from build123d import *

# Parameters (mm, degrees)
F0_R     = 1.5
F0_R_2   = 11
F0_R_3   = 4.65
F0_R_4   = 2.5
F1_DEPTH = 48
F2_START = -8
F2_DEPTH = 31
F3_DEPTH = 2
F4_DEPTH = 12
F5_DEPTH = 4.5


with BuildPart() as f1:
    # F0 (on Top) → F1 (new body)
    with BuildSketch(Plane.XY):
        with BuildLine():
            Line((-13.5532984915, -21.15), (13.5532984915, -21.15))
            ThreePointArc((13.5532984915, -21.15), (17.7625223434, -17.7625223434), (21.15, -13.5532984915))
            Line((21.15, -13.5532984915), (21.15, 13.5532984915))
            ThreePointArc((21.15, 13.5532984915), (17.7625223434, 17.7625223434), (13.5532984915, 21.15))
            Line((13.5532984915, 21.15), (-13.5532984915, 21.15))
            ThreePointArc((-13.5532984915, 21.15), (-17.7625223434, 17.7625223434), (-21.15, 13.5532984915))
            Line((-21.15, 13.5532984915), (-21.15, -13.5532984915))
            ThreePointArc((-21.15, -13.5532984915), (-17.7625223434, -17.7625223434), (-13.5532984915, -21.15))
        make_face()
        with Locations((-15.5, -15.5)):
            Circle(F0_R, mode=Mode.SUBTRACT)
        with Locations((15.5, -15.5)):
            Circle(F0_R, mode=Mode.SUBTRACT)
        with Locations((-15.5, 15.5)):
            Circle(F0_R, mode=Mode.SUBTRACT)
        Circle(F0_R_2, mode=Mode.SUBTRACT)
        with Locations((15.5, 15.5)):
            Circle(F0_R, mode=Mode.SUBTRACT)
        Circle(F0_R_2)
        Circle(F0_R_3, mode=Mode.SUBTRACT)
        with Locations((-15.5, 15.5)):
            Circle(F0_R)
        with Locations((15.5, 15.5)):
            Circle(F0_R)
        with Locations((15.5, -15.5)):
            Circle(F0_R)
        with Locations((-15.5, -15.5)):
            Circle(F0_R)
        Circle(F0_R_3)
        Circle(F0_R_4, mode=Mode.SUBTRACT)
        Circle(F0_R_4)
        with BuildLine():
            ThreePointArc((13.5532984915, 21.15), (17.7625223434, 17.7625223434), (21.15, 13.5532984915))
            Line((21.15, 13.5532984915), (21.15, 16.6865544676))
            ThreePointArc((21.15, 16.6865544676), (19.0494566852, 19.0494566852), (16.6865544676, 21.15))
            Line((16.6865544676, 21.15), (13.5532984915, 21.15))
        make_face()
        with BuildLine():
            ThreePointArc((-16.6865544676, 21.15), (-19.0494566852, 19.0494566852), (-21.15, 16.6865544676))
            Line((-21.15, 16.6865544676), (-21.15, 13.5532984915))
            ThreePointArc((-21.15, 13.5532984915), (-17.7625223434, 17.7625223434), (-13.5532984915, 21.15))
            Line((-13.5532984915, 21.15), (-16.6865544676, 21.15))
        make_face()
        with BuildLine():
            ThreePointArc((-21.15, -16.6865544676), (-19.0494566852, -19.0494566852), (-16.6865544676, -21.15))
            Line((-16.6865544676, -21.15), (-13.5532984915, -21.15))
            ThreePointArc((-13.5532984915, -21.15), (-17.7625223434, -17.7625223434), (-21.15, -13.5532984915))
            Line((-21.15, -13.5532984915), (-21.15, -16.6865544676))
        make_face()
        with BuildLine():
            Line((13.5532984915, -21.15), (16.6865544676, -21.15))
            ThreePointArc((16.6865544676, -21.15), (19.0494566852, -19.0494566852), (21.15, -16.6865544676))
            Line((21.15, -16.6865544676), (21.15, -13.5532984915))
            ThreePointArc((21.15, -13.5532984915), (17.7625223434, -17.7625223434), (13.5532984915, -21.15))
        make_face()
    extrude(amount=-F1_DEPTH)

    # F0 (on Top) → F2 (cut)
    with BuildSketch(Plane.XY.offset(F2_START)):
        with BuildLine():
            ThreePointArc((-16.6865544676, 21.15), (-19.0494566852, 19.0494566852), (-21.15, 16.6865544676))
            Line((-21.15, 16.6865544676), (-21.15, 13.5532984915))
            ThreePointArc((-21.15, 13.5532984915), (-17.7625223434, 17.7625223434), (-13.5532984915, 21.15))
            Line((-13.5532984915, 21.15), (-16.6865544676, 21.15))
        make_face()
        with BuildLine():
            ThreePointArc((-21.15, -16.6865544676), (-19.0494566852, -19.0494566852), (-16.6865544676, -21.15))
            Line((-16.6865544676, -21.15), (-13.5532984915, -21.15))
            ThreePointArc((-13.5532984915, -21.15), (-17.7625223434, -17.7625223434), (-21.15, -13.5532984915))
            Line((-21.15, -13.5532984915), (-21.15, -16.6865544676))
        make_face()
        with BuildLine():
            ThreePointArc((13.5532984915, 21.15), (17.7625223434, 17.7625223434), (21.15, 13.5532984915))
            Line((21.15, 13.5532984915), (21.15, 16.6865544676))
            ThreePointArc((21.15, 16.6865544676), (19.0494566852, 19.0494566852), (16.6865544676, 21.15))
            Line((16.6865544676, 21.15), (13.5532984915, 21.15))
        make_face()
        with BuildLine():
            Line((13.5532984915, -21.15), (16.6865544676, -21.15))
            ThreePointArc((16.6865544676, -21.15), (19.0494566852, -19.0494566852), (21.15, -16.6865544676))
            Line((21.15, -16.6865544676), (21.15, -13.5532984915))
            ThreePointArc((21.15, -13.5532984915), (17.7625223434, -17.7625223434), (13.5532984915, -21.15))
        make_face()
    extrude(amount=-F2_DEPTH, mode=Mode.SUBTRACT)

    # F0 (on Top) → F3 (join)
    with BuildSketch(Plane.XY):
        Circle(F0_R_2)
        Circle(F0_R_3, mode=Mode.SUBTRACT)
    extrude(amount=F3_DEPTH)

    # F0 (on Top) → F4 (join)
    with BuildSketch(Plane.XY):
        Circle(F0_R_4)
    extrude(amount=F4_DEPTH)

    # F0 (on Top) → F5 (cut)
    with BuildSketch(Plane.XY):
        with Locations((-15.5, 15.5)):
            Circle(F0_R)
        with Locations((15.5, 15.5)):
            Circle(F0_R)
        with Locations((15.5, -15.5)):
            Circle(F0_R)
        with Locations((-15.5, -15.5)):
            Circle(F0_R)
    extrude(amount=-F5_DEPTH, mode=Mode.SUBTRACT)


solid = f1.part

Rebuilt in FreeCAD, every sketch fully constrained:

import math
import FreeCAD as App
import Part
import Sketcher
Q = App.Units.Quantity

doc = App.newDocument("Part")
body = doc.addObject("PartDesign::Body", "Body")

sketch1 = doc.addObject("Sketcher::SketchObject", "Sketch")
body.addObject(sketch1)
sketch1.AttachmentSupport = (doc.XY_Plane, [""])
sketch1.MapMode = "FlatFace"
sketch1.addGeometry(Part.ArcOfCircle(Part.Circle(App.Vector(0, 0, 0), App.Vector(0, 0, 1), 26.94), math.radians(38.272112), math.radians(51.727888)), False)
sketch1.addGeometry(Part.LineSegment(App.Vector(16.686554, 21.15, 0), App.Vector(-16.686554, 21.15, 0)), False)
sketch1.addGeometry(Part.ArcOfCircle(Part.Circle(App.Vector(0, 0, 0), App.Vector(0, 0, 1), 26.94), math.radians(128.272112), math.radians(141.727888)), False)
sketch1.addGeometry(Part.LineSegment(App.Vector(-21.15, 16.686554, 0), App.Vector(-21.15, -16.686554, 0)), False)
sketch1.addGeometry(Part.ArcOfCircle(Part.Circle(App.Vector(0, 0, 0), App.Vector(0, 0, 1), 26.94), math.radians(-141.727888), math.radians(-128.272112)), False)
sketch1.addGeometry(Part.LineSegment(App.Vector(-16.686554, -21.15, 0), App.Vector(16.686554, -21.15, 0)), False)
sketch1.addGeometry(Part.ArcOfCircle(Part.Circle(App.Vector(0, 0, 0), App.Vector(0, 0, 1), 26.94), math.radians(-51.727888), math.radians(-38.272112)), False)
sketch1.addGeometry(Part.LineSegment(App.Vector(21.15, -16.686554, 0), App.Vector(21.15, 16.686554, 0)), False)
sketch1.addConstraint(Sketcher.Constraint("Coincident", 0, 2, 1, 1))
sketch1.addConstraint(Sketcher.Constraint("Coincident", 1, 2, 2, 1))
sketch1.addConstraint(Sketcher.Constraint("Coincident", 2, 2, 3, 1))
sketch1.addConstraint(Sketcher.Constraint("Coincident", 3, 2, 4, 1))
sketch1.addConstraint(Sketcher.Constraint("Coincident", 4, 2, 5, 1))
sketch1.addConstraint(Sketcher.Constraint("Coincident", 5, 2, 6, 1))
sketch1.addConstraint(Sketcher.Constraint("Coincident", 6, 2, 7, 1))
sketch1.addConstraint(Sketcher.Constraint("Coincident", 7, 2, 0, 1))
sketch1.addConstraint(Sketcher.Constraint("Horizontal", 1))
sketch1.addConstraint(Sketcher.Constraint("Vertical", 3))
sketch1.addConstraint(Sketcher.Constraint("Horizontal", 5))
sketch1.addConstraint(Sketcher.Constraint("Vertical", 7))
sketch1.addConstraint(Sketcher.Constraint("Coincident", 0, 3, -1, 1))
sketch1.addConstraint(Sketcher.Constraint("Coincident", 2, 3, -1, 1))
sketch1.addConstraint(Sketcher.Constraint("Coincident", 4, 3, -1, 1))
sketch1.addConstraint(Sketcher.Constraint("Coincident", 6, 3, -1, 1))
sketch1.addConstraint(Sketcher.Constraint("Equal", 0, 2))
sketch1.addConstraint(Sketcher.Constraint("Equal", 2, 4))
sketch1.addConstraint(Sketcher.Constraint("Equal", 4, 6))
sketch1.addConstraint(Sketcher.Constraint("Horizontal", 3, 2, 6, 2))
sketch1.addConstraint(Sketcher.Constraint("Vertical", 1, 2, 4, 2))
sketch1.addConstraint(Sketcher.Constraint("Equal", 5, 3))
sketch1.addConstraint(Sketcher.Constraint("Radius", 0, Q("26.94 mm")))
sketch1.addConstraint(Sketcher.Constraint("DistanceY", -1, 1, 0, 2, Q("21.15 mm")))
pad1 = doc.addObject("PartDesign::Pad", "Pad")
body.addObject(pad1)
pad1.Profile = sketch1
pad1.Length = 48
pad1.Reversed = True

sketch2 = doc.addObject("Sketcher::SketchObject", "Sketch001")
body.addObject(sketch2)
sketch2.AttachmentSupport = (doc.XY_Plane, [""])
sketch2.MapMode = "FlatFace"
sketch2.AttachmentOffset = App.Placement(App.Vector(0, 0, -8), App.Rotation())
sketch2.addGeometry(Part.ArcOfCircle(Part.Circle(App.Vector(0, 0, 0), App.Vector(0, 0, 1), 26.94), math.radians(128.272112), math.radians(141.727888)), False)
sketch2.addGeometry(Part.LineSegment(App.Vector(-21.15, 16.686554, 0), App.Vector(-21.15, 13.553298, 0)), False)
sketch2.addGeometry(Part.ArcOfCircle(Part.Circle(App.Vector(0, 0, 0), App.Vector(0, 0, 1), 25.12), math.radians(122.652476), math.radians(147.347524)), False)
sketch2.addGeometry(Part.LineSegment(App.Vector(-13.553298, 21.15, 0), App.Vector(-16.686554, 21.15, 0)), False)
sketch2.addGeometry(Part.ArcOfCircle(Part.Circle(App.Vector(0, 0, 0), App.Vector(0, 0, 1), 26.94), math.radians(-141.727888), math.radians(-128.272112)), False)
sketch2.addGeometry(Part.LineSegment(App.Vector(-16.686554, -21.15, 0), App.Vector(-13.553298, -21.15, 0)), False)
sketch2.addGeometry(Part.ArcOfCircle(Part.Circle(App.Vector(0, 0, 0), App.Vector(0, 0, 1), 25.12), math.radians(-147.347524), math.radians(-122.652476)), False)
sketch2.addGeometry(Part.LineSegment(App.Vector(-21.15, -13.553298, 0), App.Vector(-21.15, -16.686554, 0)), False)
sketch2.addGeometry(Part.ArcOfCircle(Part.Circle(App.Vector(0, 0, 0), App.Vector(0, 0, 1), 25.12), math.radians(32.652476), math.radians(57.347524)), False)
sketch2.addGeometry(Part.LineSegment(App.Vector(21.15, 13.553298, 0), App.Vector(21.15, 16.686554, 0)), False)
sketch2.addGeometry(Part.ArcOfCircle(Part.Circle(App.Vector(0, 0, 0), App.Vector(0, 0, 1), 26.94), math.radians(38.272112), math.radians(51.727888)), False)
sketch2.addGeometry(Part.LineSegment(App.Vector(16.686554, 21.15, 0), App.Vector(13.553298, 21.15, 0)), False)
sketch2.addGeometry(Part.LineSegment(App.Vector(13.553298, -21.15, 0), App.Vector(16.686554, -21.15, 0)), False)
sketch2.addGeometry(Part.ArcOfCircle(Part.Circle(App.Vector(0, 0, 0), App.Vector(0, 0, 1), 26.94), math.radians(-51.727888), math.radians(-38.272112)), False)
sketch2.addGeometry(Part.LineSegment(App.Vector(21.15, -16.686554, 0), App.Vector(21.15, -13.553298, 0)), False)
sketch2.addGeometry(Part.ArcOfCircle(Part.Circle(App.Vector(0, 0, 0), App.Vector(0, 0, 1), 25.12), math.radians(-57.347524), math.radians(-32.652476)), False)
sketch2.addConstraint(Sketcher.Constraint("Coincident", 0, 2, 1, 1))
sketch2.addConstraint(Sketcher.Constraint("Coincident", 1, 2, 2, 2))
sketch2.addConstraint(Sketcher.Constraint("Coincident", 2, 1, 3, 1))
sketch2.addConstraint(Sketcher.Constraint("Coincident", 3, 2, 0, 1))
sketch2.addConstraint(Sketcher.Constraint("Coincident", 4, 2, 5, 1))
sketch2.addConstraint(Sketcher.Constraint("Coincident", 5, 2, 6, 2))
sketch2.addConstraint(Sketcher.Constraint("Coincident", 6, 1, 7, 1))
sketch2.addConstraint(Sketcher.Constraint("Coincident", 7, 2, 4, 1))
sketch2.addConstraint(Sketcher.Constraint("Coincident", 8, 1, 9, 1))
sketch2.addConstraint(Sketcher.Constraint("Coincident", 9, 2, 10, 1))
sketch2.addConstraint(Sketcher.Constraint("Coincident", 10, 2, 11, 1))
sketch2.addConstraint(Sketcher.Constraint("Coincident", 11, 2, 8, 2))
sketch2.addConstraint(Sketcher.Constraint("Coincident", 12, 2, 13, 1))
sketch2.addConstraint(Sketcher.Constraint("Coincident", 13, 2, 14, 1))
sketch2.addConstraint(Sketcher.Constraint("Coincident", 14, 2, 15, 2))
sketch2.addConstraint(Sketcher.Constraint("Coincident", 15, 1, 12, 1))
sketch2.addConstraint(Sketcher.Constraint("Vertical", 1))
sketch2.addConstraint(Sketcher.Constraint("Horizontal", 3))
sketch2.addConstraint(Sketcher.Constraint("Horizontal", 5))
sketch2.addConstraint(Sketcher.Constraint("Vertical", 7))
sketch2.addConstraint(Sketcher.Constraint("Vertical", 9))
sketch2.addConstraint(Sketcher.Constraint("Horizontal", 11))
sketch2.addConstraint(Sketcher.Constraint("Horizontal", 12))
sketch2.addConstraint(Sketcher.Constraint("Vertical", 14))
sketch2.addConstraint(Sketcher.Constraint("Coincident", 0, 3, -1, 1))
sketch2.addConstraint(Sketcher.Constraint("Coincident", 2, 3, -1, 1))
sketch2.addConstraint(Sketcher.Constraint("Coincident", 4, 3, -1, 1))
sketch2.addConstraint(Sketcher.Constraint("Coincident", 6, 3, -1, 1))
sketch2.addConstraint(Sketcher.Constraint("Coincident", 8, 3, -1, 1))
sketch2.addConstraint(Sketcher.Constraint("Coincident", 10, 3, -1, 1))
sketch2.addConstraint(Sketcher.Constraint("Coincident", 13, 3, -1, 1))
sketch2.addConstraint(Sketcher.Constraint("Coincident", 15, 3, -1, 1))
sketch2.addConstraint(Sketcher.Constraint("Equal", 0, 4))
sketch2.addConstraint(Sketcher.Constraint("Equal", 2, 6))
sketch2.addConstraint(Sketcher.Constraint("Equal", 6, 8))
sketch2.addConstraint(Sketcher.Constraint("Equal", 4, 10))
sketch2.addConstraint(Sketcher.Constraint("Equal", 10, 13))
sketch2.addConstraint(Sketcher.Constraint("Equal", 8, 15))
sketch2.addConstraint(Sketcher.Constraint("Horizontal", 1, 2, 8, 1))
sketch2.addConstraint(Sketcher.Constraint("Horizontal", 3, 2, 10, 2))
sketch2.addConstraint(Sketcher.Constraint("Horizontal", 5, 2, 12, 2))
sketch2.addConstraint(Sketcher.Constraint("Horizontal", 7, 2, 13, 2))
sketch2.addConstraint(Sketcher.Constraint("Vertical", 3, 2, 4, 2))
sketch2.addConstraint(Sketcher.Constraint("Vertical", 1, 2, 6, 1))
sketch2.addConstraint(Sketcher.Constraint("Equal", 12, 1))
sketch2.addConstraint(Sketcher.Constraint("Radius", 0, Q("26.94 mm")))
sketch2.addConstraint(Sketcher.Constraint("Radius", 2, Q("25.12 mm")))
sketch2.addConstraint(Sketcher.Constraint("DistanceX", 0, 2, -1, 1, Q("21.15 mm")))
pocket1 = doc.addObject("PartDesign::Pocket", "Pocket")
body.addObject(pocket1)
pocket1.Profile = sketch2
pocket1.Length = 31

sketch3 = doc.addObject("Sketcher::SketchObject", "Sketch002")
body.addObject(sketch3)
sketch3.AttachmentSupport = (doc.XY_Plane, [""])
sketch3.MapMode = "FlatFace"
sketch3.addGeometry(Part.Circle(App.Vector(0, 0, 0), App.Vector(0, 0, 1), 11), False)
sketch3.addGeometry(Part.Circle(App.Vector(0, 0, 0), App.Vector(0, 0, 1), 4.65), False)
sketch3.addConstraint(Sketcher.Constraint("Coincident", 0, 3, -1, 1))
sketch3.addConstraint(Sketcher.Constraint("Coincident", 1, 3, -1, 1))
sketch3.addConstraint(Sketcher.Constraint("Diameter", 0, Q("22 mm")))
sketch3.addConstraint(Sketcher.Constraint("Diameter", 1, Q("9.3 mm")))
pad2 = doc.addObject("PartDesign::Pad", "Pad001")
body.addObject(pad2)
pad2.Profile = sketch3
pad2.Length = 2

sketch4 = doc.addObject("Sketcher::SketchObject", "Sketch003")
body.addObject(sketch4)
sketch4.AttachmentSupport = (doc.XY_Plane, [""])
sketch4.MapMode = "FlatFace"
sketch4.addGeometry(Part.Circle(App.Vector(0, 0, 0), App.Vector(0, 0, 1), 2.5), False)
sketch4.addConstraint(Sketcher.Constraint("Coincident", 0, 3, -1, 1))
sketch4.addConstraint(Sketcher.Constraint("Diameter", 0, Q("5 mm")))
pad3 = doc.addObject("PartDesign::Pad", "Pad002")
body.addObject(pad3)
pad3.Profile = sketch4
pad3.Length = 12

sketch5 = doc.addObject("Sketcher::SketchObject", "Sketch004")
body.addObject(sketch5)
sketch5.AttachmentSupport = (doc.XY_Plane, [""])
sketch5.MapMode = "FlatFace"
sketch5.addGeometry(Part.Circle(App.Vector(-15.5, 15.5, 0), App.Vector(0, 0, 1), 1.5), False)
sketch5.addGeometry(Part.Circle(App.Vector(15.5, 15.5, 0), App.Vector(0, 0, 1), 1.5), False)
sketch5.addGeometry(Part.Circle(App.Vector(15.5, -15.5, 0), App.Vector(0, 0, 1), 1.5), False)
sketch5.addGeometry(Part.Circle(App.Vector(-15.5, -15.5, 0), App.Vector(0, 0, 1), 1.5), False)
sketch5.addConstraint(Sketcher.Constraint("Equal", 0, 1))
sketch5.addConstraint(Sketcher.Constraint("Equal", 1, 2))
sketch5.addConstraint(Sketcher.Constraint("Equal", 2, 3))
sketch5.addConstraint(Sketcher.Constraint("Symmetric", 0, 3, 2, 3, -1, 1))
sketch5.addConstraint(Sketcher.Constraint("Symmetric", 1, 3, 3, 3, -1, 1))
sketch5.addConstraint(Sketcher.Constraint("Symmetric", 0, 3, 1, 3, -2))
sketch5.addConstraint(Sketcher.Constraint("Diameter", 0, Q("3 mm")))
sketch5.addConstraint(Sketcher.Constraint("DistanceX", 0, 3, 1, 3, Q("31 mm")))
sketch5.addConstraint(Sketcher.Constraint("DistanceY", 2, 3, 1, 3, Q("31 mm")))
pocket2 = doc.addObject("PartDesign::Pocket", "Pocket001")
body.addObject(pocket2)
pocket2.Profile = sketch5
pocket2.Length = 4.5

doc.recompute()
